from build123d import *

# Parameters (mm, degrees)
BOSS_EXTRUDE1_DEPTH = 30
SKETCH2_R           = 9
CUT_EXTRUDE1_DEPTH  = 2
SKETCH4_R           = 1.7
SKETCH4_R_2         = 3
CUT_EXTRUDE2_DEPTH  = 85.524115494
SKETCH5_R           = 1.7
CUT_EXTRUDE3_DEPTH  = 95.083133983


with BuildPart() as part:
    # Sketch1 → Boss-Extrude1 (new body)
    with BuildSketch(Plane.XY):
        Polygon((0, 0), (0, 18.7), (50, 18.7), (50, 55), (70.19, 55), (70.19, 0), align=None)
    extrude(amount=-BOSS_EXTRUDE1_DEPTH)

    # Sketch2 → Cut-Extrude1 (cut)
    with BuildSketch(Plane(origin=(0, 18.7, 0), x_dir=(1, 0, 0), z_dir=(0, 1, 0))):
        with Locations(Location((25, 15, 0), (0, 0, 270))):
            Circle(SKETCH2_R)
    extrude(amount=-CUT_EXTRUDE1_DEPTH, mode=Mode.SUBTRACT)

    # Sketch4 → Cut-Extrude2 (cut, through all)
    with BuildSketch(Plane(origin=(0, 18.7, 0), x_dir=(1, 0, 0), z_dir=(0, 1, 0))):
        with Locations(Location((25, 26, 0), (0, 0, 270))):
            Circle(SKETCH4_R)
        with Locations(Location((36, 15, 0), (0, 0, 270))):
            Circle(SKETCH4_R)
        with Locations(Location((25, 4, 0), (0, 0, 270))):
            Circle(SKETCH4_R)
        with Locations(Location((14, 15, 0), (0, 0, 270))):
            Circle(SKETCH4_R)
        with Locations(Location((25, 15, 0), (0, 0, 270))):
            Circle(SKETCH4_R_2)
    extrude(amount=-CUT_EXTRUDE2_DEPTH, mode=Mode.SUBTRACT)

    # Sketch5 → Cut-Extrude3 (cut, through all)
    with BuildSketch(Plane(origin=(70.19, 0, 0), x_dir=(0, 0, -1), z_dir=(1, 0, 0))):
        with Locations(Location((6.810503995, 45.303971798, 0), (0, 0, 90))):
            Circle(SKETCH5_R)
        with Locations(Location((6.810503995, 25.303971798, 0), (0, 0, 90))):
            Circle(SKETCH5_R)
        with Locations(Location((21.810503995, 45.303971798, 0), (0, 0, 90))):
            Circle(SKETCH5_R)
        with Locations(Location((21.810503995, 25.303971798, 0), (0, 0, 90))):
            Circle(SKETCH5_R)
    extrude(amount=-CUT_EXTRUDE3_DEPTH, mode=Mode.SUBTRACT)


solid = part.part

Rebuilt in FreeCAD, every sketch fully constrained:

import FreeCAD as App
import Part
import Sketcher

V = App.Vector


def add_polygon(sketch, points):
    """Adds a closed chain of lines whose ends are joined by coincident constraints."""
    first, n = sketch.GeometryCount, len(points)
    for a, b in zip(points, points[1:] + points[:1]):
        sketch.addGeometry(Part.LineSegment(App.Vector(*a, 0), App.Vector(*b, 0)), False)
    for i in range(n):
        sketch.addConstraint(Sketcher.Constraint("Coincident", first + i, 2, first + (i + 1) % n, 1))

doc = App.newDocument("Part")
body = doc.addObject("PartDesign::Body", "Body")

# Sketch on XY plane
sketch1 = body.newObject("Sketcher::SketchObject", "Sketch")
sketch1.AttachmentSupport = (doc.getObject("XY_Plane"), [""])
sketch1.MapMode = "FlatFace"
add_polygon(sketch1, [(0, 19), (0, 0), (70, 0), (70, 55), (50, 55), (50, 19)])  # lines 0-5
sketch1.addConstraint([
    Sketcher.Constraint("Vertical", 0),
    Sketcher.Constraint("Horizontal", 1),
    Sketcher.Constraint("Vertical", 2),
    Sketcher.Constraint("Horizontal", 3),
    Sketcher.Constraint("Vertical", 4),
    Sketcher.Constraint("Horizontal", 5),
    Sketcher.Constraint("Coincident", 0, 2, -1, 1),
    Sketcher.Constraint("DistanceX", 5, 2, 5, 1, 50.0),
    Sketcher.Constraint("DistanceY", 2, 1, 2, 2, 55.0),
    Sketcher.Constraint("DistanceY", 0, 2, 0, 1, 18.7),
    Sketcher.Constraint("DistanceX", 1, 1, 1, 2, 70.19),
])
pad1 = body.newObject("PartDesign::Pad", "Pad")
pad1.Profile = sketch1
pad1.Length = 30
pad1.Reversed = True

# Sketch on XZ plane
sketch2 = body.newObject("Sketcher::SketchObject", "Sketch001")
sketch2.AttachmentSupport = (doc.getObject("XZ_Plane"), [""])
sketch2.MapMode = "FlatFace"
sketch2.AttachmentOffset = App.Placement(V(0, 0, -18.7), App.Rotation())
sketch2.addGeometry(Part.Circle(V(25, -15, 0), V(0, 0, 1), 9), False)
sketch2.addConstraint([
    Sketcher.Constraint("Diameter", 0, 18.0),
    Sketcher.Constraint("DistanceX", -1, 1, 0, 3, 25.0),
    Sketcher.Constraint("DistanceY", 0, 3, -1, 1, 15.0),
])
pocket1 = body.newObject("PartDesign::Pocket", "Pocket")
pocket1.Profile = sketch2
pocket1.Length = 2
pocket1.Reversed = True

# Sketch on XZ plane
sketch3 = body.newObject("Sketcher::SketchObject", "Sketch002")
sketch3.AttachmentSupport = (doc.getObject("XZ_Plane"), [""])
sketch3.MapMode = "FlatFace"
sketch3.AttachmentOffset = App.Placement(V(0, 0, -18.7), App.Rotation())
sketch3.addGeometry([
    Part.Circle(V(25, -26, 0), V(0, 0, 1), 1.7),  # 0
    Part.Circle(V(36, -15, 0), V(0, 0, 1), 1.7),  # 1
    Part.Circle(V(25, -4, 0), V(0, 0, 1), 1.7),  # 2
    Part.Circle(V(14, -15, 0), V(0, 0, 1), 1.7),  # 3
    Part.Circle(V(25, -15, 0), V(0, 0, 1), 3),  # 4
], False)
sketch3.addConstraint([
    Sketcher.Constraint("Equal", 0, 1),
    Sketcher.Constraint("Equal", 1, 2),
    Sketcher.Constraint("Equal", 2, 3),
    Sketcher.Constraint("Horizontal", 1, 3, 3, 3),
    Sketcher.Constraint("Horizontal", 3, 3, 4, 3),
    Sketcher.Constraint("Vertical", 0, 3, 2, 3),
    Sketcher.Constraint("Vertical", 2, 3, 4, 3),
    Sketcher.Constraint("Diameter", 4, 6.0),
    Sketcher.Constraint("Diameter", 0, 3.4),
    Sketcher.Constraint("DistanceX", -1, 1, 0, 3, 25.0),
    Sketcher.Constraint("DistanceY", 0, 3, -1, 1, 26.0),
    Sketcher.Constraint("DistanceX", -1, 1, 1, 3, 36.0),
    Sketcher.Constraint("DistanceY", 1, 3, -1, 1, 15.0),
    Sketcher.Constraint("DistanceY", 2, 3, -1, 1, 4.0),
    Sketcher.Constraint("DistanceX", -1, 1, 3, 3, 14.0),
])
pocket2 = body.newObject("PartDesign::Pocket", "Pocket001")
pocket2.Profile = sketch3
pocket2.Type = "ThroughAll"
pocket2.Reversed = True

# Sketch on YZ plane
sketch4 = body.newObject("Sketcher::SketchObject", "Sketch003")
sketch4.AttachmentSupport = (doc.getObject("YZ_Plane"), [""])
sketch4.MapMode = "FlatFace"
sketch4.AttachmentOffset = App.Placement(V(0, 0, 70.19), App.Rotation())
sketch4.addGeometry([
    Part.Circle(V(45.3, -6.8, 0), V(0, 0, 1), 1.7),
    Part.Circle(V(25.3, -6.8, 0), V(0, 0, 1), 1.7),
    Part.Circle(V(45.3, -21.8, 0), V(0, 0, 1), 1.7),
    Part.Circle(V(25.3, -21.8, 0), V(0, 0, 1), 1.7),
], False)
sketch4.addConstraint([
    Sketcher.Constraint("Equal", 0, 1),
    Sketcher.Constraint("Equal", 1, 2),
    Sketcher.Constraint("Equal", 2, 3),
    Sketcher.Constraint("Horizontal", 0, 3, 1, 3),
    Sketcher.Constraint("Horizontal", 2, 3, 3, 3),
    Sketcher.Constraint("Vertical", 0, 3, 2, 3),
    Sketcher.Constraint("Vertical", 1, 3, 3, 3),
    Sketcher.Constraint("Diameter", 0, 3.4),
    Sketcher.Constraint("DistanceX", 1, 3, 0, 3, 20.0),
    Sketcher.Constraint("DistanceY", 2, 3, 0, 3, 15.0),
    Sketcher.Constraint("DistanceX", -1, 1, 0, 3, 45.303972),
    Sketcher.Constraint("DistanceY", 0, 3, -1, 1, 6.810504),
])
pocket3 = body.newObject("PartDesign::Pocket", "Pocket002")
pocket3.Profile = sketch4
pocket3.Type = "ThroughAll"

doc.recompute()
